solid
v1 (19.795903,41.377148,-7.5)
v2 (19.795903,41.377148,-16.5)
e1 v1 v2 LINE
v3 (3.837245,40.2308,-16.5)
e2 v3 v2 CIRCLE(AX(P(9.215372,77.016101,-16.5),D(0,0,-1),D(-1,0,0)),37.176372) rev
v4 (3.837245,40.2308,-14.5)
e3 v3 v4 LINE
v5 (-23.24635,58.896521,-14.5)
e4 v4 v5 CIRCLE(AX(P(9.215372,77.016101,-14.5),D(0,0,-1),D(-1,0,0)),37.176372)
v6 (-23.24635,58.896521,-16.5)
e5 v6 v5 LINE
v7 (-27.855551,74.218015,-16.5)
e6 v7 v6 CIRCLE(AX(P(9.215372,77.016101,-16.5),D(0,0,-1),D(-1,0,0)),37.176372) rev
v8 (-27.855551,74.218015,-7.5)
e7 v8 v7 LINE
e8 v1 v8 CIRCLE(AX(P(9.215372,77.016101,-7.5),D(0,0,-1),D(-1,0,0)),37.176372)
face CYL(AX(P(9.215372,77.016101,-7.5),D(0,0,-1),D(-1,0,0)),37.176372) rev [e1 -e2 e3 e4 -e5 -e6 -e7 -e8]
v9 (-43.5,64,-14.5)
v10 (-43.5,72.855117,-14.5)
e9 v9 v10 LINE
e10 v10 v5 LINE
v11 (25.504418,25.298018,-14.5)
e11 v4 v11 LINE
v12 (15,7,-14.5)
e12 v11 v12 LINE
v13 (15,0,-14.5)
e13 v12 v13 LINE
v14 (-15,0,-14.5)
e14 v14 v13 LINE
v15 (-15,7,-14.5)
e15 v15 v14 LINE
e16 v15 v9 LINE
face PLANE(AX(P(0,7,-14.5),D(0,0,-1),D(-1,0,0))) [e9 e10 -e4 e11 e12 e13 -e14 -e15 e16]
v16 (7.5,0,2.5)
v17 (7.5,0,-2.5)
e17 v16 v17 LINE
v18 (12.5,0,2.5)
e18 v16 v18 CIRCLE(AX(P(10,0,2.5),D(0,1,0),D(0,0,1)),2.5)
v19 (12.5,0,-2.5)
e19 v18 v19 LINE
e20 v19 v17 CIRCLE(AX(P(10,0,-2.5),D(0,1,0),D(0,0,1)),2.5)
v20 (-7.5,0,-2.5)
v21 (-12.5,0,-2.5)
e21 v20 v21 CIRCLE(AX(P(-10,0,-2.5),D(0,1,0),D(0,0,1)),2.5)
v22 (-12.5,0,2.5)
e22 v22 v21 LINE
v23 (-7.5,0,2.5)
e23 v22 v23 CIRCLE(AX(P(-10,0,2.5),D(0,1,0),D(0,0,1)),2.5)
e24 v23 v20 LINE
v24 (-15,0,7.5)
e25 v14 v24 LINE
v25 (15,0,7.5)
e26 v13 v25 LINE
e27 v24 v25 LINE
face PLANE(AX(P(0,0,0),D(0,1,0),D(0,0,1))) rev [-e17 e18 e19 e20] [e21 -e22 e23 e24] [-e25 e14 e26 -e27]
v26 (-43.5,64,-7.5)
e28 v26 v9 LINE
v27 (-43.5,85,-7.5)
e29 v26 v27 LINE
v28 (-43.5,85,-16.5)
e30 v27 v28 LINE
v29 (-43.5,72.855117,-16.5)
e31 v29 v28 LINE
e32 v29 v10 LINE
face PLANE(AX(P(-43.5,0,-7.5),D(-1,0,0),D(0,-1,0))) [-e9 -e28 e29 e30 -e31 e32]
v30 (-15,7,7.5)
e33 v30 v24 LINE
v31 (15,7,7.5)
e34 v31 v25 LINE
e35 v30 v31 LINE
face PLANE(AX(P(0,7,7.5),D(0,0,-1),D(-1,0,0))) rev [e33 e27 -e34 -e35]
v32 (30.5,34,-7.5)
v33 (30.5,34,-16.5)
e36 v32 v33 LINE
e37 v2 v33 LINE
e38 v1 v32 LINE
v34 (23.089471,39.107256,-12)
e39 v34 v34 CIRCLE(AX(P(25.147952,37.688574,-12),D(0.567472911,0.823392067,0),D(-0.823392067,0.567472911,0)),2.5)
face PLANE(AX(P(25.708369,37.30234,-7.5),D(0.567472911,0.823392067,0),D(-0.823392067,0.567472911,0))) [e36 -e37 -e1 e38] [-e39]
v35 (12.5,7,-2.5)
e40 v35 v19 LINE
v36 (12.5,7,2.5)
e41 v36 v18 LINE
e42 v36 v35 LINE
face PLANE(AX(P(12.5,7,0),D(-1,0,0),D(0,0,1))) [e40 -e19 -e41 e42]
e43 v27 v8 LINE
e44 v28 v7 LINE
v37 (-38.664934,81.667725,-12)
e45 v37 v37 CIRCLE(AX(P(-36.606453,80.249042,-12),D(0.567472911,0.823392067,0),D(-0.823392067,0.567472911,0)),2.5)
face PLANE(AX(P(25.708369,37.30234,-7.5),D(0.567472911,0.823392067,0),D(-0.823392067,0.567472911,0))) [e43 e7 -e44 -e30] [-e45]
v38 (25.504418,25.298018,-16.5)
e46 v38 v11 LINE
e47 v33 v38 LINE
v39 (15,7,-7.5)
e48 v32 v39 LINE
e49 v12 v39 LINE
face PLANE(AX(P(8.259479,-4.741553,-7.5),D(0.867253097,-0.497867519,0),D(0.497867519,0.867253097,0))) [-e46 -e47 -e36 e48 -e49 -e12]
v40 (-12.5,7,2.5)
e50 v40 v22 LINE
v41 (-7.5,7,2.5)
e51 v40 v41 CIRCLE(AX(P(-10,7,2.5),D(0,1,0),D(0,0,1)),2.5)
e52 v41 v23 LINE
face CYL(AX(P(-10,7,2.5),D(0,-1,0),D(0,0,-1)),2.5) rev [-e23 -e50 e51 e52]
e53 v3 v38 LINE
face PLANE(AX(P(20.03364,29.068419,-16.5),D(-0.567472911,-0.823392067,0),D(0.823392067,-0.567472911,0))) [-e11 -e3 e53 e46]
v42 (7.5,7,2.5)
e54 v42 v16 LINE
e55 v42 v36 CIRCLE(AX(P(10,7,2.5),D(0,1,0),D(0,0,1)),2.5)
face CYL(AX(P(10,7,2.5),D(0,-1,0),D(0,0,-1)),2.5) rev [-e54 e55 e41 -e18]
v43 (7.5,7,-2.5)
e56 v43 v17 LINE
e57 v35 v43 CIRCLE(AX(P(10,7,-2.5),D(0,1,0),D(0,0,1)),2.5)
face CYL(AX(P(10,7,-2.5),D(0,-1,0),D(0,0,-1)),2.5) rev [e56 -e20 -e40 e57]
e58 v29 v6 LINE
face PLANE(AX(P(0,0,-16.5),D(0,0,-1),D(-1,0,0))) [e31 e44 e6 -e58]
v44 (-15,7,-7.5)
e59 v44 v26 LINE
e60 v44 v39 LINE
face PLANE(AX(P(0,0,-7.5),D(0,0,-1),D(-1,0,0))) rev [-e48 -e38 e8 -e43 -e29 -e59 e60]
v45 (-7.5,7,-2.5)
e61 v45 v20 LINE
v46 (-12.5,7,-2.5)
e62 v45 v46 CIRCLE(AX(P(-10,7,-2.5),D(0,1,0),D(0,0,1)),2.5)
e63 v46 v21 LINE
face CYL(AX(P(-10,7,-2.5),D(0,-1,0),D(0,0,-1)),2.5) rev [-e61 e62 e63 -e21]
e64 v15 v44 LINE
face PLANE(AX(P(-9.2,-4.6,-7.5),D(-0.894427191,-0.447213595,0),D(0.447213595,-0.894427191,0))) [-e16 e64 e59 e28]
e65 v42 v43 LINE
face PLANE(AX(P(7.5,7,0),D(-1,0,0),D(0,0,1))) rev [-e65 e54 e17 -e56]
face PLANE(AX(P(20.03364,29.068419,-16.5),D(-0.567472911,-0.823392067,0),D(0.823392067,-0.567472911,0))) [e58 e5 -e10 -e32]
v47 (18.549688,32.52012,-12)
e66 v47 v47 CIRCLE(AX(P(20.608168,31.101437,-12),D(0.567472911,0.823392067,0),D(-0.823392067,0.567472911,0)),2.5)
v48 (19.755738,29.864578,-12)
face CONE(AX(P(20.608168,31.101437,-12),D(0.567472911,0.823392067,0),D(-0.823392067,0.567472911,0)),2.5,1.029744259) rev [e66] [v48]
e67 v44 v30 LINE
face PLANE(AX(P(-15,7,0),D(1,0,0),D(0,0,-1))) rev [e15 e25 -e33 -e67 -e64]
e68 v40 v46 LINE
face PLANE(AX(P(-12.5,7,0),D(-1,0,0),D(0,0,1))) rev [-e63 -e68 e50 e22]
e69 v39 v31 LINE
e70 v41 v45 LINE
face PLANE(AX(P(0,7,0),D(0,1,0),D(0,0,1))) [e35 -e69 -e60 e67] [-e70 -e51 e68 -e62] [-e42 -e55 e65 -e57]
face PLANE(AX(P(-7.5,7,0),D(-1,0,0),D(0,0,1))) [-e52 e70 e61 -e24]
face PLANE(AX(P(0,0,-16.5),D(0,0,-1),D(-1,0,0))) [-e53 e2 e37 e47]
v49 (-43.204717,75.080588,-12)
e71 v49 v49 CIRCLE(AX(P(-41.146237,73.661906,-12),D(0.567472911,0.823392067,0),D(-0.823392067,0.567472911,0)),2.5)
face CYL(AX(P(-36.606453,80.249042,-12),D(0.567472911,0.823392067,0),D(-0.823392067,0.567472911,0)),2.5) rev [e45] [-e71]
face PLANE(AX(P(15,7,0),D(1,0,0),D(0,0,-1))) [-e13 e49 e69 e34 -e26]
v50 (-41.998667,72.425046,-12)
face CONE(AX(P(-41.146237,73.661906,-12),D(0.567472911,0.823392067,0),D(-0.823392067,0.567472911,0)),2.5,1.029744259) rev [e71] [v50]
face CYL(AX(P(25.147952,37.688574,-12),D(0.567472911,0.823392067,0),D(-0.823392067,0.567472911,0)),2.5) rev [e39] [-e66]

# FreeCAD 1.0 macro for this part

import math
import FreeCAD as App
import Part
import Sketcher
Q = App.Units.Quantity


def add_polygon(sketch, points):
    """Adds a closed chain of lines whose ends are joined by coincident constraints."""
    first, n = sketch.GeometryCount, len(points)
    for a, b in zip(points, points[1:] + points[:1]):
        sketch.addGeometry(Part.LineSegment(App.Vector(*a, 0), App.Vector(*b, 0)), False)
    for i in range(n):
        sketch.addConstraint(Sketcher.Constraint("Coincident", first + i, 2, first + (i + 1) % n, 1))

doc = App.newDocument("Part")
params = doc.addObject("Spreadsheet::Sheet", "Params")
for row, (alias, value) in enumerate([
    ("sketch1_radius", "2.5 mm"),
    ("sketch1_width", "30 mm"),
    ("sketch1_height", "22 mm"),
    ("sketch1_height2", "5 mm"),
    ("pad1_length", "7 mm"),
    ("sketch2_width", "30 mm"),
    ("sketch2_height", "21 mm"),
    ("sketch2_length", "19 mm"),
    ("sketch2_length2", "13 mm"),
    ("pad2_length", "7 mm"),
    ("sketch3_length", "13 mm"),
    ("sketch3_length2", "19 mm"),
    ("pad3_length", "2 mm"),
    ("sketch4_diameter", "5 mm"),
    ("hole_diameter", "5 mm"),
    ("hole_depth", "8 mm"),
], start=1):
    params.set(f"A{row}", alias)
    params.set(f"B{row}", "=" + value)
    params.setAlias(f"B{row}", alias)

body = doc.addObject("PartDesign::Body", "Body")

sketch1 = doc.addObject("Sketcher::SketchObject", "Sketch")
body.addObject(sketch1)
sketch1.AttachmentSupport = (doc.XZ_Plane, [""])
sketch1.MapMode = "FlatFace"
add_polygon(sketch1, [(-15, -14.5), (-15, 7.5), (15, 7.5), (15, -14.5)])
sketch1.addGeometry(Part.LineSegment(App.Vector(-7.5, -2.5, 0), App.Vector(-7.5, 2.5, 0)), False)
sketch1.addGeometry(Part.ArcOfCircle(Part.Circle(App.Vector(-10, 2.5, 0), App.Vector(0, 0, 1), 2.5), math.radians(0), math.radians(180)), False)
sketch1.addGeometry(Part.LineSegment(App.Vector(-12.5, 2.5, 0), App.Vector(-12.5, -2.5, 0)), False)
sketch1.addGeometry(Part.ArcOfCircle(Part.Circle(App.Vector(-10, -2.5, 0), App.Vector(0, 0, 1), 2.5), math.radians(180), math.radians(360)), False)
sketch1.addGeometry(Part.LineSegment(App.Vector(12.5, -2.5, 0), App.Vector(12.5, 2.5, 0)), False)
sketch1.addGeometry(Part.ArcOfCircle(Part.Circle(App.Vector(10, 2.5, 0), App.Vector(0, 0, 1), 2.5), math.radians(0), math.radians(180)), False)
sketch1.addGeometry(Part.LineSegment(App.Vector(7.5, 2.5, 0), App.Vector(7.5, -2.5, 0)), False)
sketch1.addGeometry(Part.ArcOfCircle(Part.Circle(App.Vector(10, -2.5, 0), App.Vector(0, 0, 1), 2.5), math.radians(180), math.radians(360)), False)
sketch1.addConstraint(Sketcher.Constraint("Tangent", 4, 2, 5, 1))
sketch1.addConstraint(Sketcher.Constraint("Tangent", 5, 2, 6, 1))
sketch1.addConstraint(Sketcher.Constraint("Tangent", 6, 2, 7, 1))
sketch1.addConstraint(Sketcher.Constraint("Tangent", 7, 2, 4, 1))
sketch1.addConstraint(Sketcher.Constraint("Tangent", 8, 2, 9, 1))
sketch1.addConstraint(Sketcher.Constraint("Tangent", 9, 2, 10, 1))
sketch1.addConstraint(Sketcher.Constraint("Tangent", 10, 2, 11, 1))
sketch1.addConstraint(Sketcher.Constraint("Tangent", 11, 2, 8, 1))
sketch1.addConstraint(Sketcher.Constraint("Vertical", 0))
sketch1.addConstraint(Sketcher.Constraint("Horizontal", 1))
sketch1.addConstraint(Sketcher.Constraint("Vertical", 2))
sketch1.addConstraint(Sketcher.Constraint("Horizontal", 3))
sketch1.addConstraint(Sketcher.Constraint("Vertical", 4))
sketch1.addConstraint(Sketcher.Constraint("Vertical", 6))
sketch1.addConstraint(Sketcher.Constraint("Vertical", 8))
sketch1.addConstraint(Sketcher.Constraint("Vertical", 10))
sketch1.addConstraint(Sketcher.Constraint("Equal", 7, 9))
sketch1.addConstraint(Sketcher.Constraint("Symmetric", 7, 3, 9, 3, -1, 1))
sketch1.addConstraint(Sketcher.Constraint("Horizontal", 5, 3, 9, 3))
sketch1.addConstraint(Sketcher.Constraint("Horizontal", 7, 3, 11, 3))
sketch1.addConstraint(Sketcher.Constraint("Radius", 5, Q("2.5 mm")))
sketch1.addConstraint(Sketcher.Constraint("DistanceX", 1, 1, 1, 2, Q("30 mm")))
sketch1.addConstraint(Sketcher.Constraint("DistanceY", 0, 1, 0, 2, Q("22 mm")))
sketch1.addConstraint(Sketcher.Constraint("DistanceY", 4, 1, 4, 2, Q("5 mm")))
sketch1.addConstraint(Sketcher.Constraint("DistanceX", 5, 3, -1, 1, Q("10 mm")))
sketch1.addConstraint(Sketcher.Constraint("DistanceX", 0, 2, -1, 1, Q("15 mm")))
sketch1.addConstraint(Sketcher.Constraint("DistanceY", 5, 3, 0, 2, Q("5 mm")))
sketch1.setExpression("Constraints[24]", "Params.sketch1_radius")
sketch1.setExpression("Constraints[25]", "Params.sketch1_width")
sketch1.setExpression("Constraints[26]", "Params.sketch1_height")
sketch1.setExpression("Constraints[27]", "Params.sketch1_height2")
pad1 = doc.addObject("PartDesign::Pad", "Pad")
body.addObject(pad1)
pad1.Profile = sketch1
pad1.setExpression("Length", "Params.pad1_length")
pad1.Reversed = True

sketch2 = doc.addObject("Sketcher::SketchObject", "Sketch001")
body.addObject(sketch2)
sketch2.AttachmentSupport = (doc.XY_Plane, [""])
sketch2.MapMode = "FlatFace"
sketch2.AttachmentOffset = App.Placement(App.Vector(0, 0, -14.5), App.Rotation())
sketch2.addGeometry(Part.LineSegment(App.Vector(15, 7, 0), App.Vector(-15, 7, 0)), False)
sketch2.addGeometry(Part.LineSegment(App.Vector(-15, 7, 0), App.Vector(-44, 64, 0)), False)
sketch2.addGeometry(Part.LineSegment(App.Vector(-44, 64, 0), App.Vector(-44, 85, 0)), False)
sketch2.addGeometry(Part.LineSegment(App.Vector(-44, 85, 0), App.Vector(-28, 74, 0)), False)
sketch2.addGeometry(Part.ArcOfCircle(Part.Circle(App.Vector(9, 77, 0), App.Vector(0, 0, 1), 37), math.radians(-176), math.radians(-73)), False)
sketch2.addGeometry(Part.LineSegment(App.Vector(20, 41, 0), App.Vector(30, 34, 0)), False)
sketch2.addGeometry(Part.LineSegment(App.Vector(30, 34, 0), App.Vector(15, 7, 0)), False)
sketch2.addConstraint(Sketcher.Constraint("Coincident", 0, 2, 1, 1))
sketch2.addConstraint(Sketcher.Constraint("Coincident", 1, 2, 2, 1))
sketch2.addConstraint(Sketcher.Constraint("Coincident", 2, 2, 3, 1))
sketch2.addConstraint(Sketcher.Constraint("Coincident", 3, 2, 4, 1))
sketch2.addConstraint(Sketcher.Constraint("Coincident", 4, 2, 5, 1))
sketch2.addConstraint(Sketcher.Constraint("Coincident", 5, 2, 6, 1))
sketch2.addConstraint(Sketcher.Constraint("Coincident", 6, 2, 0, 1))
sketch2.addConstraint(Sketcher.Constraint("Horizontal", 0))
sketch2.addConstraint(Sketcher.Constraint("Vertical", 2))
sketch2.addConstraint(Sketcher.Constraint("Parallel", 3, 5))
sketch2.addConstraint(Sketcher.Constraint("DistanceX", 0, 2, 0, 1, Q("30 mm")))
sketch2.addConstraint(Sketcher.Constraint("DistanceY", 2, 1, 2, 2, Q("21 mm")))
sketch2.addConstraint(Sketcher.Constraint("Distance", 3, Q("19 mm")))
sketch2.addConstraint(Sketcher.Constraint("Distance", 5, Q("13 mm")))
sketch2.addConstraint(Sketcher.Constraint("DistanceX", 0, 2, -1, 1, Q("15 mm")))
sketch2.addConstraint(Sketcher.Constraint("DistanceY", -1, 1, 0, 2, Q("7 mm")))
sketch2.addConstraint(Sketcher.Constraint("DistanceY", -1, 1, 1, 2, Q("64 mm")))
sketch2.addConstraint(Sketcher.Constraint("DistanceY", -1, 1, 5, 2, Q("34 mm")))
sketch2.addConstraint(Sketcher.Constraint("DistanceX", 1, 2, 5, 2, Q("74 mm")))
sketch2.addConstraint(Sketcher.Constraint("DistanceX", 1, 2, -1, 1, Q("43.5 mm")))
sketch2.addConstraint(Sketcher.Constraint("Radius", 4, Q("37.176372 mm")))
sketch2.addConstraint(Sketcher.Constraint("DistanceY", -1, 1, 4, 3, Q("77.016101 mm")))
sketch2.setExpression("Constraints[10]", "Params.sketch2_width")
sketch2.setExpression("Constraints[11]", "Params.sketch2_height")
sketch2.setExpression("Constraints[12]", "Params.sketch2_length")
sketch2.setExpression("Constraints[13]", "Params.sketch2_length2")
pad2 = doc.addObject("PartDesign::Pad", "Pad001")
body.addObject(pad2)
pad2.Profile = sketch2
pad2.setExpression("Length", "Params.pad2_length")

sketch3 = doc.addObject("Sketcher::SketchObject", "Sketch002")
body.addObject(sketch3)
sketch3.AttachmentSupport = (doc.XY_Plane, [""])
sketch3.MapMode = "FlatFace"
sketch3.AttachmentOffset = App.Placement(App.Vector(0, 0, -16.5), App.Rotation())
sketch3.addGeometry(Part.LineSegment(App.Vector(20, 41, 0), App.Vector(30, 34, 0)), False)
sketch3.addGeometry(Part.LineSegment(App.Vector(30, 34, 0), App.Vector(26, 25, 0)), False)
sketch3.addGeometry(Part.LineSegment(App.Vector(26, 25, 0), App.Vector(4, 40, 0)), False)
sketch3.addGeometry(Part.ArcOfCircle(Part.Circle(App.Vector(9, 77, 0), App.Vector(0, 0, 1), 37), math.radians(-98), math.radians(-73)), False)
sketch3.addGeometry(Part.LineSegment(App.Vector(-44, 85, 0), App.Vector(-28, 74, 0)), False)
sketch3.addGeometry(Part.ArcOfCircle(Part.Circle(App.Vector(9, 77, 0), App.Vector(0, 0, 1), 37), math.radians(-176), math.radians(-151)), False)
sketch3.addGeometry(Part.LineSegment(App.Vector(-23, 59, 0), App.Vector(-44, 73, 0)), False)
sketch3.addGeometry(Part.LineSegment(App.Vector(-44, 73, 0), App.Vector(-44, 85, 0)), False)
sketch3.addConstraint(Sketcher.Constraint("Coincident", 0, 2, 1, 1))
sketch3.addConstraint(Sketcher.Constraint("Coincident", 1, 2, 2, 1))
sketch3.addConstraint(Sketcher.Constraint("Coincident", 2, 2, 3, 1))
sketch3.addConstraint(Sketcher.Constraint("Coincident", 3, 2, 0, 1))
sketch3.addConstraint(Sketcher.Constraint("Coincident", 4, 2, 5, 1))
sketch3.addConstraint(Sketcher.Constraint("Coincident", 5, 2, 6, 1))
sketch3.addConstraint(Sketcher.Constraint("Coincident", 6, 2, 7, 1))
sketch3.addConstraint(Sketcher.Constraint("Coincident", 7, 2, 4, 1))
sketch3.addConstraint(Sketcher.Constraint("Vertical", 7))
sketch3.addConstraint(Sketcher.Constraint("Coincident", 5, 3, 3, 3))
sketch3.addConstraint(Sketcher.Constraint("Equal", 3, 5))
sketch3.addConstraint(Sketcher.Constraint("Parallel", 0, 2))
sketch3.addConstraint(Sketcher.Constraint("Parallel", 2, 4))
sketch3.addConstraint(Sketcher.Constraint("Parallel", 4, 6))
sketch3.addConstraint(Sketcher.Constraint("Distance", 0, Q("13 mm")))
sketch3.addConstraint(Sketcher.Constraint("Distance", 4, Q("19 mm")))
sketch3.addConstraint(Sketcher.Constraint("DistanceY", -1, 1, 0, 2, Q("34 mm")))
sketch3.addConstraint(Sketcher.Constraint("DistanceY", -1, 1, 7, 2, Q("85 mm")))
sketch3.addConstraint(Sketcher.Constraint("DistanceX", -1, 1, 0, 2, Q("30.5 mm")))
sketch3.addConstraint(Sketcher.Constraint("DistanceX", 6, 2, -1, 1, Q("43.5 mm")))
sketch3.addConstraint(Sketcher.Constraint("Radius", 3, Q("37.176372 mm")))
sketch3.addConstraint(Sketcher.Constraint("DistanceY", -1, 1, 3, 3, Q("77.016101 mm")))
sketch3.addConstraint(Sketcher.Constraint("DistanceY", -1, 1, 2, 2, Q("40.2308 mm")))
sketch3.addConstraint(Sketcher.Constraint("DistanceX", 4, 2, 5, 2, Q("4.6092 mm")))
sketch3.addConstraint(Sketcher.Constraint("Distance", 1, Q("10.033958 mm")))
sketch3.setExpression("Constraints[14]", "Params.sketch3_length")
sketch3.setExpression("Constraints[15]", "Params.sketch3_length2")
pad3 = doc.addObject("PartDesign::Pad", "Pad002")
body.addObject(pad3)
pad3.Profile = sketch3
pad3.setExpression("Length", "Params.pad3_length")

sketch4 = doc.addObject("Sketcher::SketchObject", "Sketch003")
body.addObject(sketch4)
sketch4.Placement = App.Placement(App.Vector(25.708369, 37.30234, 0), App.Rotation(App.Vector(0.823392067, -0.567472911, 0), App.Vector(0, 0, -1.000000001), App.Vector(0.567472911, 0.823392067, 0), "ZXY"))
sketch4.addGeometry(Part.Circle(App.Vector(-75.7, 12, 0), App.Vector(0, 0, 1), 2.5), False)
sketch4.addGeometry(Part.Circle(App.Vector(-0.7, 12, 0), App.Vector(0, 0, 1), 2.5), False)
sketch4.addConstraint(Sketcher.Constraint("Equal", 0, 1))
sketch4.addConstraint(Sketcher.Constraint("Horizontal", 0, 3, 1, 3))
sketch4.addConstraint(Sketcher.Constraint("Diameter", 0, Q("5 mm")))
sketch4.addConstraint(Sketcher.Constraint("DistanceY", -1, 1, 0, 3, Q("12 mm")))
sketch4.addConstraint(Sketcher.Constraint("DistanceX", 0, 3, 1, 3, Q("75 mm")))
sketch4.addConstraint(Sketcher.Constraint("DistanceX", 0, 3, -1, 1, Q("75.680621 mm")))
sketch4.setExpression("Constraints[2]", "Params.sketch4_diameter")
doc.recompute()
hole = doc.addObject("PartDesign::Hole", "Hole")
body.addObject(hole)
hole.Profile = sketch4
hole.ThreadType = "None"
hole.setExpression("Diameter", "Params.hole_diameter")
hole.DepthType = "Dimension"
hole.setExpression("Depth", "Params.hole_depth")
hole.DrillPoint = "Angled"
hole.DrillPointAngle = 118

doc.recompute()
